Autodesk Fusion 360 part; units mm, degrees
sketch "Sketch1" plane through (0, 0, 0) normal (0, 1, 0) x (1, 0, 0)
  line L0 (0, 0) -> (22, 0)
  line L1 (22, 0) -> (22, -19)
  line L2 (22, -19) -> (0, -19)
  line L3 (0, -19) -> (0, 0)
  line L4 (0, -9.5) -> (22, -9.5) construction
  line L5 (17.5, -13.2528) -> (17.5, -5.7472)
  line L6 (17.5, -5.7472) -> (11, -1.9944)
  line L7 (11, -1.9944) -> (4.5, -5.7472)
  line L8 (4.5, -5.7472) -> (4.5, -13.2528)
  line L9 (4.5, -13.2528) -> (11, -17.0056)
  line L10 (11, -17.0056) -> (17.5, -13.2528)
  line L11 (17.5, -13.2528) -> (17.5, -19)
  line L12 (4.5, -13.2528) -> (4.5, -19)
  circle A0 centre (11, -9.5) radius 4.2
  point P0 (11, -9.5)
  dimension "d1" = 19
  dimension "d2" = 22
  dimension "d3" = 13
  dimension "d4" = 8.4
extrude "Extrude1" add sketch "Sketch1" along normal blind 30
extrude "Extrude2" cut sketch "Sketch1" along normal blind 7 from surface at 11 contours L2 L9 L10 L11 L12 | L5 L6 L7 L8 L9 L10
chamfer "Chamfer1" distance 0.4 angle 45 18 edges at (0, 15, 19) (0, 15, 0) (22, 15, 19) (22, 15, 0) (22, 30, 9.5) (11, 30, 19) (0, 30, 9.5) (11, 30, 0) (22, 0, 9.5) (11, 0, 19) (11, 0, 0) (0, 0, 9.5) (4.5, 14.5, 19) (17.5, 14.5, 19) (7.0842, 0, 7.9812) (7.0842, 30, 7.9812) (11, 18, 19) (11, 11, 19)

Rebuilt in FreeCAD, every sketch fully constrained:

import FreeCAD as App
import Part
import Sketcher
Q = App.Units.Quantity


def edges_at(feature, points):
    """Names of the edges that pass closest to the given points."""
    edges = feature.Shape.Edges
    near = lambda p: min(range(len(edges)), key=lambda i: edges[i].distToShape(Part.Vertex(*p))[0])
    return sorted({f"Edge{near(p) + 1}" for p in points})


def add_polygon(sketch, points):
    """Adds a closed chain of lines whose ends are joined by coincident constraints."""
    first, n = sketch.GeometryCount, len(points)
    for a, b in zip(points, points[1:] + points[:1]):
        sketch.addGeometry(Part.LineSegment(App.Vector(*a, 0), App.Vector(*b, 0)), False)
    for i in range(n):
        sketch.addConstraint(Sketcher.Constraint("Coincident", first + i, 2, first + (i + 1) % n, 1))

doc = App.newDocument("Part")
body = doc.addObject("PartDesign::Body", "Body")

# Sketch on XZ plane
sketch1 = body.newObject("Sketcher::SketchObject", "Sketch")
sketch1.AttachmentSupport = (doc.getObject("XZ_Plane"), [""])
sketch1.MapMode = "FlatFace"
add_polygon(sketch1, [(22, 0), (0, 0), (0, 19), (22, 19)])  # lines 0-3
sketch1.addGeometry(Part.Circle(App.Vector(11, 9.5, 0), App.Vector(0, 0, 1), 4.2), False)  # 4
sketch1.addConstraint([
    Sketcher.Constraint("Horizontal", 0),
    Sketcher.Constraint("Vertical", 1),
    Sketcher.Constraint("Horizontal", 2),
    Sketcher.Constraint("Vertical", 3),
    Sketcher.Constraint("Coincident", 0, 2, -1, 1),
    Sketcher.Constraint("Diameter", 4, 8.4),
    Sketcher.Constraint("DistanceX", 0, 2, 0, 1, 22.0),
    Sketcher.Constraint("DistanceY", 1, 1, 1, 2, 19.0),
    Sketcher.Constraint("DistanceX", -1, 1, 4, 3, 11.0),
    Sketcher.Constraint("DistanceY", -1, 1, 4, 3, 9.5),
])
pad1 = body.newObject("PartDesign::Pad", "Pad")
pad1.Profile = sketch1
pad1.Length = 30
pad1.Reversed = True

# Sketch on XZ plane
sketch2 = body.newObject("Sketcher::SketchObject", "Sketch001")
sketch2.AttachmentSupport = (doc.getObject("XZ_Plane"), [""])
sketch2.MapMode = "FlatFace"
sketch2.AttachmentOffset = App.Placement(App.Vector(0, 0, -11), App.Rotation())
add_polygon(sketch2, [(4.5, 19), (17.5, 19), (17.5, 5.7), (11, 2), (4.5, 5.7)])  # lines 0-4
sketch2.addGeometry(Part.Circle(App.Vector(11, 9.5, 0), App.Vector(0, 0, 1), 4.2), False)  # 5
sketch2.addConstraint([
    Sketcher.Constraint("Horizontal", 0),
    Sketcher.Constraint("Vertical", 1),
    Sketcher.Constraint("Vertical", 4),
    Sketcher.Constraint("Horizontal", 1, 2, 3, 2),
    Sketcher.Constraint("Vertical", 5, 3, 2, 2),
    Sketcher.Constraint("Equal", 2, 3),
    Sketcher.Constraint("Diameter", 5, 8.4),
    Sketcher.Constraint("DistanceX", 0, 1, 0, 2, 13.0),
    Sketcher.Constraint("DistanceY", -1, 1, 0, 2, 19.0),
    Sketcher.Constraint("Angle", 2, Q("-149.9998 deg")),
    Sketcher.Constraint("DistanceX", -1, 1, 5, 3, 11.0),
    Sketcher.Constraint("DistanceY", -1, 1, 5, 3, 9.5),
    Sketcher.Constraint("DistanceY", 1, 2, 1, 1, 13.2528),
])
pocket1 = body.newObject("PartDesign::Pocket", "Pocket")
pocket1.Profile = sketch2
pocket1.Length = 7
doc.recompute()

chamfer = body.newObject("PartDesign::Chamfer", "Chamfer")
chamfer.Base = (pocket1, edges_at(pocket1, [
    (0, 15, 19),
    (0, 15, 0),
    (22, 15, 19),
    (22, 15, 0),
    (22, 30, 9.5),
    (11, 30, 19),
    (0, 30, 9.5),
    (11, 30, 0),
    (22, 0, 9.5),
    (11, 0, 19),
    (11, 0, 0),
    (0, 0, 9.5),
    (4.5, 14.5, 19),
    (17.5, 14.5, 19),
    (7.084, 0, 7.981),
    (7.084, 30, 7.981),
    (11, 18, 19),
    (11, 11, 19),
]))
chamfer.Size = 0.4

doc.recompute()
